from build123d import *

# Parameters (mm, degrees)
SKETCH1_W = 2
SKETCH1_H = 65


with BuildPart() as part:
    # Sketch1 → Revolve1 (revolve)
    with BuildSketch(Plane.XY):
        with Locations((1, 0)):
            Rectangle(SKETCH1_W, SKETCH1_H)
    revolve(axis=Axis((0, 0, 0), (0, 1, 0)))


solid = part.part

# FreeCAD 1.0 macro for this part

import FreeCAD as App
import Part
import Sketcher

V = App.Vector

doc = App.newDocument("Part")
body = doc.addObject("PartDesign::Body", "Body")

# Sketch on XY plane
sketch1 = doc.addObject("Sketcher::SketchObject", "Sketch")
body.addObject(sketch1)
sketch1.AttachmentSupport = (doc.XY_Plane, [""])
sketch1.MapMode = "FlatFace"
sketch1.addGeometry([
    Part.LineSegment(V(0, 32.5, 0), V(0, -32.5, 0)),
    Part.LineSegment(V(0, -32.5, 0), V(2, -32.5, 0)),
    Part.LineSegment(V(2, -32.5, 0), V(2, 32.5, 0)),
    Part.LineSegment(V(2, 32.5, 0), V(0, 32.5, 0)),
], False)
sketch1.addConstraint([
    Sketcher.Constraint("Coincident", 0, 2, 1, 1),
    Sketcher.Constraint("Coincident", 1, 2, 2, 1),
    Sketcher.Constraint("Coincident", 2, 2, 3, 1),
    Sketcher.Constraint("Coincident", 3, 2, 0, 1),
    Sketcher.Constraint("Vertical", 0),
    Sketcher.Constraint("Horizontal", 1),
    Sketcher.Constraint("Vertical", 2),
    Sketcher.Constraint("Horizontal", 3),
    Sketcher.Constraint("Symmetric", 0, 2, 3, 2, -1, 1),
    Sketcher.Constraint("DistanceX", 1, 1, 1, 2, 2.0),
    Sketcher.Constraint("DistanceY", 0, 2, 0, 1, 65.0),
])
revolution = doc.addObject("PartDesign::Revolution", "Revolution")
body.addObject(revolution)
revolution.Profile = sketch1
revolution.ReferenceAxis = (sketch1, ["V_Axis"])
revolution.Angle = 360

doc.recompute()
